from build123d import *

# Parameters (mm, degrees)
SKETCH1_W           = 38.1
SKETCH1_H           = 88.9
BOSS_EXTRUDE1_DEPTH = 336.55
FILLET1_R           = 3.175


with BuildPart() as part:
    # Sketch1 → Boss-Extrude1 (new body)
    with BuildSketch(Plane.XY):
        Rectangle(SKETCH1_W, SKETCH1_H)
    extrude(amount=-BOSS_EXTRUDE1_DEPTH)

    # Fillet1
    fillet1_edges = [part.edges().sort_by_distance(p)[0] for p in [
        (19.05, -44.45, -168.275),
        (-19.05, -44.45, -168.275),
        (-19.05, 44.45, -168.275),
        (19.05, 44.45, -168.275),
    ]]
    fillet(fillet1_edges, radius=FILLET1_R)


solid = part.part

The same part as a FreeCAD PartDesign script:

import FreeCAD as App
import Part
import Sketcher
Q = App.Units.Quantity


def edges_at(feature, points):
    """Names of the edges that pass closest to the given points."""
    edges = feature.Shape.Edges
    near = lambda p: min(range(len(edges)), key=lambda i: edges[i].distToShape(Part.Vertex(*p))[0])
    return sorted({f"Edge{near(p) + 1}" for p in points})

doc = App.newDocument("Part")
body = doc.addObject("PartDesign::Body", "Body")

sketch1 = body.newObject("Sketcher::SketchObject", "Sketch")
sketch1.AttachmentSupport = (doc.getObject("XY_Plane"), [""])
sketch1.MapMode = "FlatFace"
sketch1.addGeometry([
    Part.LineSegment(App.Vector(-19, 44, 0), App.Vector(-19, -44, 0)),
    Part.LineSegment(App.Vector(-19, -44, 0), App.Vector(19, -44, 0)),
    Part.LineSegment(App.Vector(19, -44, 0), App.Vector(19, 44, 0)),
    Part.LineSegment(App.Vector(19, 44, 0), App.Vector(-19, 44, 0)),
], False)
sketch1.addConstraint([
    Sketcher.Constraint("Coincident", 0, 2, 1, 1),
    Sketcher.Constraint("Coincident", 1, 2, 2, 1),
    Sketcher.Constraint("Coincident", 2, 2, 3, 1),
    Sketcher.Constraint("Coincident", 3, 2, 0, 1),
    Sketcher.Constraint("Vertical", 0),
    Sketcher.Constraint("Horizontal", 1),
    Sketcher.Constraint("Vertical", 2),
    Sketcher.Constraint("Horizontal", 3),
    Sketcher.Constraint("Symmetric", 0, 2, 2, 2, -1, 1),
    Sketcher.Constraint("DistanceX", 1, 1, 1, 2, Q("1.5 in")),
    Sketcher.Constraint("DistanceY", 0, 2, 0, 1, Q("3.5 in")),
])
pad1 = body.newObject("PartDesign::Pad", "Pad")
pad1.Profile = sketch1
pad1.Length = Q("13.25 in")
pad1.Reversed = True
doc.recompute()

fillet = body.newObject("PartDesign::Fillet", "Fillet")
fillet.Base = (pad1, edges_at(pad1, [
    (19.05, -44.45, -168.275),
    (-19.05, -44.45, -168.275),
    (-19.05, 44.45, -168.275),
    (19.05, 44.45, -168.275),
]))
fillet.Radius = Q("0.125 in")

doc.recompute()
